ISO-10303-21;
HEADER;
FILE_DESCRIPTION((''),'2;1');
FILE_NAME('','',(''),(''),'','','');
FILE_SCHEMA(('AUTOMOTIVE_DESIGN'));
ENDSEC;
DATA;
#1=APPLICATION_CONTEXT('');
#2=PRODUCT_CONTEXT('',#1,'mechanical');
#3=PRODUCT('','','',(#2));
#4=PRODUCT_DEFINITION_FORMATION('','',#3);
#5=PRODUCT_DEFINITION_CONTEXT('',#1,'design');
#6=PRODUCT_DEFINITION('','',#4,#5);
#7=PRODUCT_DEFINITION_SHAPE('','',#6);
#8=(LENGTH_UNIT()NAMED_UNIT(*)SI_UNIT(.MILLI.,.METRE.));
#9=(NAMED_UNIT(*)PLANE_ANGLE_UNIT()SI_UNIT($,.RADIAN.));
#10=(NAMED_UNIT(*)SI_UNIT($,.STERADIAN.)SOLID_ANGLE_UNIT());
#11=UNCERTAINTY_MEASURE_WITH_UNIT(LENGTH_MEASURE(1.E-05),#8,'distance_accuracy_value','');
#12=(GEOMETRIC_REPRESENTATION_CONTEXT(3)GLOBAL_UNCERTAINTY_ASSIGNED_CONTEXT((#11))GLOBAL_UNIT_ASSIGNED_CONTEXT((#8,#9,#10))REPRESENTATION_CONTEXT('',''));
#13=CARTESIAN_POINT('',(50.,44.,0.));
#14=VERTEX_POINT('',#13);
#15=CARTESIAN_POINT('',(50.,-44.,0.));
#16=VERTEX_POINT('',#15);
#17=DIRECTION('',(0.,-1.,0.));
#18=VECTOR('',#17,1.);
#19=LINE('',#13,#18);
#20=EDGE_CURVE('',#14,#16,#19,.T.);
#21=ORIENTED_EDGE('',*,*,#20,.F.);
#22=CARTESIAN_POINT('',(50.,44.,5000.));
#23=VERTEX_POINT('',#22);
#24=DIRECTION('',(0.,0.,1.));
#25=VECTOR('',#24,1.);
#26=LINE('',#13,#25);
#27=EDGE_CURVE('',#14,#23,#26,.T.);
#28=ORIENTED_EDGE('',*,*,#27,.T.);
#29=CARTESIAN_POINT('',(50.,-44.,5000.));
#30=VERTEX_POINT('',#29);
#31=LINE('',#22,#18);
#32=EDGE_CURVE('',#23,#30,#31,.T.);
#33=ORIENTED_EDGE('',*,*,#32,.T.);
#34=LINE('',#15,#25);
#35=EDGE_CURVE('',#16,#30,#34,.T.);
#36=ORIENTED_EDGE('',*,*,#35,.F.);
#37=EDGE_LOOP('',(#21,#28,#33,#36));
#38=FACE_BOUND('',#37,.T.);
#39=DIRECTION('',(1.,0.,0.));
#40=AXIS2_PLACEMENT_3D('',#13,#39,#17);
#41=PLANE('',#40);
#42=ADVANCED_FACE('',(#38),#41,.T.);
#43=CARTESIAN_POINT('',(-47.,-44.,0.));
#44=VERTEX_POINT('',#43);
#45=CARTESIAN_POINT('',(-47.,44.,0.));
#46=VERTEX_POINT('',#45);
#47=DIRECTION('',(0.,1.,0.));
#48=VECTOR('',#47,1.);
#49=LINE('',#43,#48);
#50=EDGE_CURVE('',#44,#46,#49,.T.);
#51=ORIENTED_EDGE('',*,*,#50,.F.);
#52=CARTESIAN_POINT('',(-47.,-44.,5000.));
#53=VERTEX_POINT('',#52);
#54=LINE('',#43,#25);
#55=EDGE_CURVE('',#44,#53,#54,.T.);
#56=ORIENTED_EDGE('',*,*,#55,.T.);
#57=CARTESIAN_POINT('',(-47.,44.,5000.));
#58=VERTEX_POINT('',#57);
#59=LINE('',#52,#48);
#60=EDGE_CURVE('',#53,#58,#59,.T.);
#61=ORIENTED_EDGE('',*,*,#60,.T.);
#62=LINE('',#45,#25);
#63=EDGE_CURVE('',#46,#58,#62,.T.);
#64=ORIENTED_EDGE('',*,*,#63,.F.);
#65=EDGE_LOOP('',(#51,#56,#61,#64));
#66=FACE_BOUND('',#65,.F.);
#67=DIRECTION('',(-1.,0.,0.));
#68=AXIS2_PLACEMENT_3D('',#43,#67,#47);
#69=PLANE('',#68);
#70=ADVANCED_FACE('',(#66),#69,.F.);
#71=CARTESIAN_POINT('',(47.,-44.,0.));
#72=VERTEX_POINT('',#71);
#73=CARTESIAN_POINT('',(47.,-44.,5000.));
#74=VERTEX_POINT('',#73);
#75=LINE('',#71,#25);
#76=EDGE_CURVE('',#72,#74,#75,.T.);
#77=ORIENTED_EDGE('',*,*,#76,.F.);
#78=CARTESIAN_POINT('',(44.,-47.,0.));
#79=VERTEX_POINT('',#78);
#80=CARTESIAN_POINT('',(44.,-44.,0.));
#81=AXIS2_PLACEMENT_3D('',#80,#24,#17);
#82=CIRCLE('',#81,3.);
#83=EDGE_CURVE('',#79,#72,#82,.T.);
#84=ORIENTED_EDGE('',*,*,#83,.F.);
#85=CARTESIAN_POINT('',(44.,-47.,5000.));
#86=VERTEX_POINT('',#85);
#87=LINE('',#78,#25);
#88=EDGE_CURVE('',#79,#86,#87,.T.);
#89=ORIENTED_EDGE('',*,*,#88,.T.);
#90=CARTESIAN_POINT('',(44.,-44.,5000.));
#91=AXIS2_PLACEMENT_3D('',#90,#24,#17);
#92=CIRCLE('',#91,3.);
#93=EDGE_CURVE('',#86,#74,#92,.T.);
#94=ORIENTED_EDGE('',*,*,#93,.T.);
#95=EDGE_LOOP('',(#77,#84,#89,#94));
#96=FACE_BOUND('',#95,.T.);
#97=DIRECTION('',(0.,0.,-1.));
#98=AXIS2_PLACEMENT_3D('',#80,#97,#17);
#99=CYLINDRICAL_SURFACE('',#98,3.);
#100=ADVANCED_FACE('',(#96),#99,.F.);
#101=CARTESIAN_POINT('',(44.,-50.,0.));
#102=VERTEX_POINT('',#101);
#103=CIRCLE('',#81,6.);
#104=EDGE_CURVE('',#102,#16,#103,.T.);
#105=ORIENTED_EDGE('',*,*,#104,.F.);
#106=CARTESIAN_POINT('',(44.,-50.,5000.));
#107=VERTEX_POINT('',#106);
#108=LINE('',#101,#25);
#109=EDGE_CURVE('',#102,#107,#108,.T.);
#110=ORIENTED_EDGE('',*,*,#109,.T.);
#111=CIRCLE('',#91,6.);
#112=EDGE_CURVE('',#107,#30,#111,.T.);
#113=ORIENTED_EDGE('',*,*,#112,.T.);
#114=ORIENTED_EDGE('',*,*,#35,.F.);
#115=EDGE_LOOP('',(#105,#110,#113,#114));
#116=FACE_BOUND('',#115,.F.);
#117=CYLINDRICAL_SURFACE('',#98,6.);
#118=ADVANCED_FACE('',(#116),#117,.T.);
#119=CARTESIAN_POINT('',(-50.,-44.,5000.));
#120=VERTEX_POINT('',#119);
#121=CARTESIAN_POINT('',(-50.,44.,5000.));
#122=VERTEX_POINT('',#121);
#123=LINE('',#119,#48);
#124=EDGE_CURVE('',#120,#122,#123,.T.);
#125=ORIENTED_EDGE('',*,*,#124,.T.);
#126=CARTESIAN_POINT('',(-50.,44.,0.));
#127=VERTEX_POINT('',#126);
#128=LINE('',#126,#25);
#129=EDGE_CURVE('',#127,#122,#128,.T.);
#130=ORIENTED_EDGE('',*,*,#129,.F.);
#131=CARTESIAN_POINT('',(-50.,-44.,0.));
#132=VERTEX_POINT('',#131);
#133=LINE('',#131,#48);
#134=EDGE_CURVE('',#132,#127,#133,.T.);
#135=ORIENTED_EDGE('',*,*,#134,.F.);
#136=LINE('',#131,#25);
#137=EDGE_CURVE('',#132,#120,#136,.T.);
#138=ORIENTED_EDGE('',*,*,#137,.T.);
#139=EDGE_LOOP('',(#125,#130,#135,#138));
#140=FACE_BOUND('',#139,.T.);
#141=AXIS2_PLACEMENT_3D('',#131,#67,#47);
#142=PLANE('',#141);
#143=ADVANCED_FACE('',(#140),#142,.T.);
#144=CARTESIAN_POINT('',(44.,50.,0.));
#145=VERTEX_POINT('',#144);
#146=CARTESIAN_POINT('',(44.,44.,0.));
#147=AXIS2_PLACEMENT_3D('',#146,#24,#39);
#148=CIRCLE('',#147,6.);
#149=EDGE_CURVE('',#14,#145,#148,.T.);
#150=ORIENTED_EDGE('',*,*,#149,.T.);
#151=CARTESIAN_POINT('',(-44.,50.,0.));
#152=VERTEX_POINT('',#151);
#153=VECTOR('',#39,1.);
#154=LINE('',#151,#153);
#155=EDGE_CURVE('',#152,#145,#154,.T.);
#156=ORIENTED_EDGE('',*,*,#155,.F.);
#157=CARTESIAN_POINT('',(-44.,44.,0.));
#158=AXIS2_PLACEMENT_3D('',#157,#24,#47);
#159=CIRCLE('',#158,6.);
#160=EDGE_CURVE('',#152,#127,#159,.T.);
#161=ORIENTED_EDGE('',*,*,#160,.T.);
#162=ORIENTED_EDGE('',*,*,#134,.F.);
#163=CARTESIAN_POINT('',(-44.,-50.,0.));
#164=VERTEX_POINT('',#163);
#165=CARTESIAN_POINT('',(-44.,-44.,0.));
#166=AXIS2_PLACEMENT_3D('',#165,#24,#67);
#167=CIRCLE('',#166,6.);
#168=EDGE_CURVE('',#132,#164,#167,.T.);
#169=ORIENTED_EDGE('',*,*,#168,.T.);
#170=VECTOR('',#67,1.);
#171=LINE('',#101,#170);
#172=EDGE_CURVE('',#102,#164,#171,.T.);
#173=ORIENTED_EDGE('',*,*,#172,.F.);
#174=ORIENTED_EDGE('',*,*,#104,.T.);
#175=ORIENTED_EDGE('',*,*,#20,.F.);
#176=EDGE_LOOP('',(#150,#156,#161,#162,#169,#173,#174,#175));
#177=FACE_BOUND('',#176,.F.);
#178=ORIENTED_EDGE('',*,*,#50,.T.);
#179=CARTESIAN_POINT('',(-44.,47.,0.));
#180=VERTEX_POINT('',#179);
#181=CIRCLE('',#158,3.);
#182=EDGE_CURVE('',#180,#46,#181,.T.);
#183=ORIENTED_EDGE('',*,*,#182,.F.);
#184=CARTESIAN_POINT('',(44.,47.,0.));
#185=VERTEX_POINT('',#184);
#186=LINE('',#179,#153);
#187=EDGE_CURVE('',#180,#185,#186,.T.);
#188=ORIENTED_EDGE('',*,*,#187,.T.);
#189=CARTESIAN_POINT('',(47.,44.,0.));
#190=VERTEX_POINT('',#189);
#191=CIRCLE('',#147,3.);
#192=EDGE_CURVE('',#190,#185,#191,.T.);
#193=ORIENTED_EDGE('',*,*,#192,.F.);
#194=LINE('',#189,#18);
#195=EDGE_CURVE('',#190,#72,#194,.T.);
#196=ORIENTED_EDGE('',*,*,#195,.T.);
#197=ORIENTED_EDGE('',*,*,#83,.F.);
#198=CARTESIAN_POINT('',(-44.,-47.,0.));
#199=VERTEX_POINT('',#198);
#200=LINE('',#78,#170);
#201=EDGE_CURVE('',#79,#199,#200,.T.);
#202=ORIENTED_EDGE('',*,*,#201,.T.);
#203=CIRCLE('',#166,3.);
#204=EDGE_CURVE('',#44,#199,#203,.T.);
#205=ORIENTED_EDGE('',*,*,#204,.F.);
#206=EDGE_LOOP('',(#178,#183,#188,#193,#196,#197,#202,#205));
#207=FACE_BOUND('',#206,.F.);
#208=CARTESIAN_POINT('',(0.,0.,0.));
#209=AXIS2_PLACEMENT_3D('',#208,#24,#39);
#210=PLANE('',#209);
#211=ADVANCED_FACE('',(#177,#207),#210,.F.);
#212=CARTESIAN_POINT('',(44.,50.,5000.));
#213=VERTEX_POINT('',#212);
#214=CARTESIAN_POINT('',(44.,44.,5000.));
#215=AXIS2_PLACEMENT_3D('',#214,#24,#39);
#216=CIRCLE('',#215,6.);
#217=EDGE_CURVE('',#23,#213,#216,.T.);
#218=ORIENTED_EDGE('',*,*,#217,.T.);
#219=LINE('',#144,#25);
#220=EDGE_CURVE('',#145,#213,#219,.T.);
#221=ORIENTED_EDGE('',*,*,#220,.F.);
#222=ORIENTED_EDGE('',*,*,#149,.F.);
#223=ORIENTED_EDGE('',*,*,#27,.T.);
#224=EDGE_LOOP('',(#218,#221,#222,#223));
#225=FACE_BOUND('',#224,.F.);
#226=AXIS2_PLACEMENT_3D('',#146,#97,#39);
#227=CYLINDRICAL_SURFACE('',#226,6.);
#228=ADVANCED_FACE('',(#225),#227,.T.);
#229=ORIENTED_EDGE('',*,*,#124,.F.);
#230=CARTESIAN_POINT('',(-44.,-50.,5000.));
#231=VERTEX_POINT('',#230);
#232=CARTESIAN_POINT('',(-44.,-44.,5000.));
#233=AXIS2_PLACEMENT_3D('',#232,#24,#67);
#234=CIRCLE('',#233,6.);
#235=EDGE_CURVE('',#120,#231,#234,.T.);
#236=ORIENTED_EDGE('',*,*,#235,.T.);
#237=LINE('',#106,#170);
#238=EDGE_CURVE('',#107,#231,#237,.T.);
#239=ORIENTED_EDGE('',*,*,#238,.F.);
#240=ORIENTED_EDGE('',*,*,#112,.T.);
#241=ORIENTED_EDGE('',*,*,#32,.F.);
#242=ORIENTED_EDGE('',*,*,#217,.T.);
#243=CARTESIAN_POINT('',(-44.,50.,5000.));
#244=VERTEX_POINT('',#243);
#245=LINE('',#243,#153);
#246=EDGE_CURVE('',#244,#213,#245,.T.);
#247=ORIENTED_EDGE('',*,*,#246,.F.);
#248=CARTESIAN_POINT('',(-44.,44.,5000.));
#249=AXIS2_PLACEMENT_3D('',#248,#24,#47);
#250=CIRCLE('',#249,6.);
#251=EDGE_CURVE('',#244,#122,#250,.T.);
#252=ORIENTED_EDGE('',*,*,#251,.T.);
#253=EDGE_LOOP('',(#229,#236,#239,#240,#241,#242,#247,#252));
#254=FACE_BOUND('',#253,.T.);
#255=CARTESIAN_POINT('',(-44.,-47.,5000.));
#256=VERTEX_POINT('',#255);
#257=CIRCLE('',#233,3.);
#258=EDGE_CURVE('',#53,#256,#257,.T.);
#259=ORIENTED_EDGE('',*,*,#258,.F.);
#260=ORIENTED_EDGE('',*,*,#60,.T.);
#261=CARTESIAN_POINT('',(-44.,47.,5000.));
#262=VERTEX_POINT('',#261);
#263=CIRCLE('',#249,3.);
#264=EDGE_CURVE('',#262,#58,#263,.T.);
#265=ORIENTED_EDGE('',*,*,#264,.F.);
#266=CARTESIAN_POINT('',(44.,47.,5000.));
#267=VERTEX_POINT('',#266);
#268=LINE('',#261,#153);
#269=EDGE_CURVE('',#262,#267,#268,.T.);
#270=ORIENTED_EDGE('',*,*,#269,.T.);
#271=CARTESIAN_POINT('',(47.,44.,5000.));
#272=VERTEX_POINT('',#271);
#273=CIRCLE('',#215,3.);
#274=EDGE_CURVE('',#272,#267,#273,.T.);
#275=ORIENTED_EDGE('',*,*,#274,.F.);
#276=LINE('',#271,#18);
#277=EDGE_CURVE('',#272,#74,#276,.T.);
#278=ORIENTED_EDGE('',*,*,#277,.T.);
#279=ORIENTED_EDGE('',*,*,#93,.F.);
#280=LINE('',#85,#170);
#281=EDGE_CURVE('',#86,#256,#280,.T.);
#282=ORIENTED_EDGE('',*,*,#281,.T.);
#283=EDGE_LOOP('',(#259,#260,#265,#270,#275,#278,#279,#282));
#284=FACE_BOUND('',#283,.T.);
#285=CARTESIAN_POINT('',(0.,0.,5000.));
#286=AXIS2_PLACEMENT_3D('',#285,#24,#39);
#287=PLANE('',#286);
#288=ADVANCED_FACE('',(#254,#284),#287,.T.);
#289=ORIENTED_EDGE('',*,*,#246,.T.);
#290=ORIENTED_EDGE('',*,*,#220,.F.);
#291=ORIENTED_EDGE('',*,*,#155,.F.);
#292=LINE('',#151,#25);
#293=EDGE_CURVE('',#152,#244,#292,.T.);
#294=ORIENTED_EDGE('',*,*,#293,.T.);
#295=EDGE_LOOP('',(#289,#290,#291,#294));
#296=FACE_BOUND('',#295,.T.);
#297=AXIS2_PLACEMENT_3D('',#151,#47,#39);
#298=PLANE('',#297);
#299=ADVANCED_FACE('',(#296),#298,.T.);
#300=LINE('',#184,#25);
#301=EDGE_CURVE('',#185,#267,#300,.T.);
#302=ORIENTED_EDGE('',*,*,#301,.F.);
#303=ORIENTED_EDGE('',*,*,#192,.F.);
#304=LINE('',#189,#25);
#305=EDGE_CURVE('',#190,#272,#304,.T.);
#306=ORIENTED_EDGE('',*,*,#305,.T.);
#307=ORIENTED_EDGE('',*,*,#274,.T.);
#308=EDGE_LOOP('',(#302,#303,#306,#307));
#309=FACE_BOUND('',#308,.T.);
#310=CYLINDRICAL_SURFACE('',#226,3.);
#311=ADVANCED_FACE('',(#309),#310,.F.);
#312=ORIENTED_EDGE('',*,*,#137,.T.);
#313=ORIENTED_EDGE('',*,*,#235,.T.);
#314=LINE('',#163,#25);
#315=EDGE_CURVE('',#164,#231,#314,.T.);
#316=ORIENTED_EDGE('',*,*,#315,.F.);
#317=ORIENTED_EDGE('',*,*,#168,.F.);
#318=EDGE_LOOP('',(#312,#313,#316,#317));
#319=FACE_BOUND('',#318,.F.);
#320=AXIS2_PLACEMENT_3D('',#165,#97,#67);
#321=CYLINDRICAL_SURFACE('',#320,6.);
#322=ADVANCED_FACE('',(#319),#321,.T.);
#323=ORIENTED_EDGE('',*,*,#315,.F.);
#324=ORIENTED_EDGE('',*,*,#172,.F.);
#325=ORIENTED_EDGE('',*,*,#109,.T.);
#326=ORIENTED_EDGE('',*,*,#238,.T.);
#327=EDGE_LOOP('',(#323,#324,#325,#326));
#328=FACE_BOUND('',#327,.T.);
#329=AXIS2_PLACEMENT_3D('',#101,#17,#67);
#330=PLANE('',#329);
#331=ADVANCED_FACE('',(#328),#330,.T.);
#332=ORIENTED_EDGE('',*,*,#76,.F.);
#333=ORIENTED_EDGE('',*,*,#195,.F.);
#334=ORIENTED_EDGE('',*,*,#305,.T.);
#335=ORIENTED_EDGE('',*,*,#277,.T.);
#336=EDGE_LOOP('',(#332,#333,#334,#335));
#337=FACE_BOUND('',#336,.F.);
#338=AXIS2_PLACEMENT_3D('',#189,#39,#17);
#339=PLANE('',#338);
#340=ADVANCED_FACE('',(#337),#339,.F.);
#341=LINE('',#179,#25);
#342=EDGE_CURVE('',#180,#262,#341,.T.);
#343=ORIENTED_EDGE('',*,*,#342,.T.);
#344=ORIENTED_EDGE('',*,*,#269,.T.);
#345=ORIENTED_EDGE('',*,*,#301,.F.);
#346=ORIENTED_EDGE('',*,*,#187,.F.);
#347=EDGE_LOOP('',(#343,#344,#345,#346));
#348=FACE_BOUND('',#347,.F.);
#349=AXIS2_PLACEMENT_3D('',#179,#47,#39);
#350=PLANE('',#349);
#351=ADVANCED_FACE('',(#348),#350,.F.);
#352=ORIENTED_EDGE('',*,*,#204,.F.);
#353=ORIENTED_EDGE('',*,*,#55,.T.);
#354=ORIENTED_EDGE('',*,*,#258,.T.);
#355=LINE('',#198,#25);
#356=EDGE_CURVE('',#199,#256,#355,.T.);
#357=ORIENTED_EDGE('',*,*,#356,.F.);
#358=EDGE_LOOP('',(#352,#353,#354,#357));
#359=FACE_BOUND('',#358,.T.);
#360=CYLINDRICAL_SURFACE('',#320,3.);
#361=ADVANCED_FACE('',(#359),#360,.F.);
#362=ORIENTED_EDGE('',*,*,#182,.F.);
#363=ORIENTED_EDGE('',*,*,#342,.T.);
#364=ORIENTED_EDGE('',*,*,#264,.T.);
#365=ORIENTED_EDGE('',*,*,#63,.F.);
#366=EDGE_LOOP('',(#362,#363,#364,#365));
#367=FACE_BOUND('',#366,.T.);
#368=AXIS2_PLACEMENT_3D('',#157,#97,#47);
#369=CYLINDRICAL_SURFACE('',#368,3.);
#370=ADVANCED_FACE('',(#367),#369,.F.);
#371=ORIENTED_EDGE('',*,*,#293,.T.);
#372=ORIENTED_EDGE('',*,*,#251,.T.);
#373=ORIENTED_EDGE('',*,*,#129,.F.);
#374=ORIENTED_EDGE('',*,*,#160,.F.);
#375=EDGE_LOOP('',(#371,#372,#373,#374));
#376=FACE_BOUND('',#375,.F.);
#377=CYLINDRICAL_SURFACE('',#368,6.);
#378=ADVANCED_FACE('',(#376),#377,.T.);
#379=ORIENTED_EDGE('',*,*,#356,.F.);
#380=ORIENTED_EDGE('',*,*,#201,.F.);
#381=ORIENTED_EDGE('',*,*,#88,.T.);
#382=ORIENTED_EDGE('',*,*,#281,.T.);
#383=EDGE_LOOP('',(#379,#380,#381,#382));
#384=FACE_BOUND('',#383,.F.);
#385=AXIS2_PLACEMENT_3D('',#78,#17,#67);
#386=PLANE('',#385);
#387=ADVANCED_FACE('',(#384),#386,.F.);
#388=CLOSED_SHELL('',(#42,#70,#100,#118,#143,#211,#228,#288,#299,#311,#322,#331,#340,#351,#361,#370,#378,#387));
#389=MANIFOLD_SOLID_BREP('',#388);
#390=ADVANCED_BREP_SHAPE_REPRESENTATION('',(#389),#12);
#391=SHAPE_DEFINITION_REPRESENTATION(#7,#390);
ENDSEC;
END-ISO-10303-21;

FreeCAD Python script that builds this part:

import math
import FreeCAD as App
import Part
import Sketcher

V = App.Vector
Q = App.Units.Quantity

doc = App.newDocument("Part")
body = doc.addObject("PartDesign::Body", "Body")

# Sketch on XY plane
sketch1 = body.newObject("Sketcher::SketchObject", "Sketch")
sketch1.AttachmentSupport = (doc.getObject("XY_Plane"), [""])
sketch1.MapMode = "FlatFace"
sketch1.addGeometry([
    Part.LineSegment(V(-50, 44, 0), V(-50, -44, 0)),  # 0
    Part.ArcOfCircle(Part.Circle(V(-44, -44, 0), V(0, 0, 1), 6), math.radians(180), math.radians(270)),  # 1
    Part.LineSegment(V(-44, -50, 0), V(44, -50, 0)),  # 2
    Part.ArcOfCircle(Part.Circle(V(44, -44, 0), V(0, 0, 1), 6), math.radians(-90), math.radians(0)),  # 3
    Part.LineSegment(V(50, -44, 0), V(50, 44, 0)),  # 4
    Part.ArcOfCircle(Part.Circle(V(44, 44, 0), V(0, 0, 1), 6), math.radians(0), math.radians(90)),  # 5
    Part.LineSegment(V(44, 50, 0), V(-44, 50, 0)),  # 6
    Part.ArcOfCircle(Part.Circle(V(-44, 44, 0), V(0, 0, 1), 6), math.radians(90), math.radians(180)),  # 7
    Part.ArcOfCircle(Part.Circle(V(-44, 44, 0), V(0, 0, 1), 3), math.radians(90), math.radians(180)),  # 8
    Part.LineSegment(V(-44, 47, 0), V(44, 47, 0)),  # 9
    Part.ArcOfCircle(Part.Circle(V(44, 44, 0), V(0, 0, 1), 3), math.radians(0), math.radians(90)),  # 10
    Part.LineSegment(V(47, 44, 0), V(47, -44, 0)),  # 11
    Part.ArcOfCircle(Part.Circle(V(44, -44, 0), V(0, 0, 1), 3), math.radians(-90), math.radians(0)),  # 12
    Part.LineSegment(V(44, -47, 0), V(-44, -47, 0)),  # 13
    Part.ArcOfCircle(Part.Circle(V(-44, -44, 0), V(0, 0, 1), 3), math.radians(180), math.radians(270)),  # 14
    Part.LineSegment(V(-47, -44, 0), V(-47, 44, 0)),  # 15
], False)
sketch1.addConstraint([
    Sketcher.Constraint("Tangent", 0, 2, 1, 1),
    Sketcher.Constraint("Tangent", 1, 2, 2, 1),
    Sketcher.Constraint("Tangent", 2, 2, 3, 1),
    Sketcher.Constraint("Tangent", 3, 2, 4, 1),
    Sketcher.Constraint("Tangent", 4, 2, 5, 1),
    Sketcher.Constraint("Tangent", 5, 2, 6, 1),
    Sketcher.Constraint("Tangent", 6, 2, 7, 1),
    Sketcher.Constraint("Tangent", 7, 2, 0, 1),
    Sketcher.Constraint("Tangent", 8, 1, 9, 1),
    Sketcher.Constraint("Tangent", 9, 2, 10, 2),
    Sketcher.Constraint("Tangent", 10, 1, 11, 1),
    Sketcher.Constraint("Tangent", 11, 2, 12, 2),
    Sketcher.Constraint("Tangent", 12, 1, 13, 1),
    Sketcher.Constraint("Tangent", 13, 2, 14, 2),
    Sketcher.Constraint("Tangent", 14, 1, 15, 1),
    Sketcher.Constraint("Tangent", 15, 2, 8, 2),
    Sketcher.Constraint("Vertical", 0),
    Sketcher.Constraint("Horizontal", 2),
    Sketcher.Constraint("Vertical", 4),
    Sketcher.Constraint("Horizontal", 6),
    Sketcher.Constraint("Horizontal", 9),
    Sketcher.Constraint("Vertical", 11),
    Sketcher.Constraint("Horizontal", 13),
    Sketcher.Constraint("Vertical", 15),
    Sketcher.Constraint("Coincident", 8, 3, 7, 3),
    Sketcher.Constraint("Coincident", 10, 3, 5, 3),
    Sketcher.Constraint("Coincident", 12, 3, 3, 3),
    Sketcher.Constraint("Equal", 1, 3),
    Sketcher.Constraint("Equal", 3, 5),
    Sketcher.Constraint("Equal", 5, 7),
    Sketcher.Constraint("Equal", 12, 14),
    Sketcher.Constraint("Symmetric", 1, 3, 5, 3, -1, 1),
    Sketcher.Constraint("Equal", 13, 0),
    Sketcher.Constraint("Radius", 1, Q("6 mm")),
    Sketcher.Constraint("Radius", 8, Q("3 mm")),
    Sketcher.Constraint("DistanceX", 0, 2, -1, 1, Q("50 mm")),
])
pad1 = body.newObject("PartDesign::Pad", "Pad")
pad1.Profile = sketch1
pad1.Length = 5000

doc.recompute()
